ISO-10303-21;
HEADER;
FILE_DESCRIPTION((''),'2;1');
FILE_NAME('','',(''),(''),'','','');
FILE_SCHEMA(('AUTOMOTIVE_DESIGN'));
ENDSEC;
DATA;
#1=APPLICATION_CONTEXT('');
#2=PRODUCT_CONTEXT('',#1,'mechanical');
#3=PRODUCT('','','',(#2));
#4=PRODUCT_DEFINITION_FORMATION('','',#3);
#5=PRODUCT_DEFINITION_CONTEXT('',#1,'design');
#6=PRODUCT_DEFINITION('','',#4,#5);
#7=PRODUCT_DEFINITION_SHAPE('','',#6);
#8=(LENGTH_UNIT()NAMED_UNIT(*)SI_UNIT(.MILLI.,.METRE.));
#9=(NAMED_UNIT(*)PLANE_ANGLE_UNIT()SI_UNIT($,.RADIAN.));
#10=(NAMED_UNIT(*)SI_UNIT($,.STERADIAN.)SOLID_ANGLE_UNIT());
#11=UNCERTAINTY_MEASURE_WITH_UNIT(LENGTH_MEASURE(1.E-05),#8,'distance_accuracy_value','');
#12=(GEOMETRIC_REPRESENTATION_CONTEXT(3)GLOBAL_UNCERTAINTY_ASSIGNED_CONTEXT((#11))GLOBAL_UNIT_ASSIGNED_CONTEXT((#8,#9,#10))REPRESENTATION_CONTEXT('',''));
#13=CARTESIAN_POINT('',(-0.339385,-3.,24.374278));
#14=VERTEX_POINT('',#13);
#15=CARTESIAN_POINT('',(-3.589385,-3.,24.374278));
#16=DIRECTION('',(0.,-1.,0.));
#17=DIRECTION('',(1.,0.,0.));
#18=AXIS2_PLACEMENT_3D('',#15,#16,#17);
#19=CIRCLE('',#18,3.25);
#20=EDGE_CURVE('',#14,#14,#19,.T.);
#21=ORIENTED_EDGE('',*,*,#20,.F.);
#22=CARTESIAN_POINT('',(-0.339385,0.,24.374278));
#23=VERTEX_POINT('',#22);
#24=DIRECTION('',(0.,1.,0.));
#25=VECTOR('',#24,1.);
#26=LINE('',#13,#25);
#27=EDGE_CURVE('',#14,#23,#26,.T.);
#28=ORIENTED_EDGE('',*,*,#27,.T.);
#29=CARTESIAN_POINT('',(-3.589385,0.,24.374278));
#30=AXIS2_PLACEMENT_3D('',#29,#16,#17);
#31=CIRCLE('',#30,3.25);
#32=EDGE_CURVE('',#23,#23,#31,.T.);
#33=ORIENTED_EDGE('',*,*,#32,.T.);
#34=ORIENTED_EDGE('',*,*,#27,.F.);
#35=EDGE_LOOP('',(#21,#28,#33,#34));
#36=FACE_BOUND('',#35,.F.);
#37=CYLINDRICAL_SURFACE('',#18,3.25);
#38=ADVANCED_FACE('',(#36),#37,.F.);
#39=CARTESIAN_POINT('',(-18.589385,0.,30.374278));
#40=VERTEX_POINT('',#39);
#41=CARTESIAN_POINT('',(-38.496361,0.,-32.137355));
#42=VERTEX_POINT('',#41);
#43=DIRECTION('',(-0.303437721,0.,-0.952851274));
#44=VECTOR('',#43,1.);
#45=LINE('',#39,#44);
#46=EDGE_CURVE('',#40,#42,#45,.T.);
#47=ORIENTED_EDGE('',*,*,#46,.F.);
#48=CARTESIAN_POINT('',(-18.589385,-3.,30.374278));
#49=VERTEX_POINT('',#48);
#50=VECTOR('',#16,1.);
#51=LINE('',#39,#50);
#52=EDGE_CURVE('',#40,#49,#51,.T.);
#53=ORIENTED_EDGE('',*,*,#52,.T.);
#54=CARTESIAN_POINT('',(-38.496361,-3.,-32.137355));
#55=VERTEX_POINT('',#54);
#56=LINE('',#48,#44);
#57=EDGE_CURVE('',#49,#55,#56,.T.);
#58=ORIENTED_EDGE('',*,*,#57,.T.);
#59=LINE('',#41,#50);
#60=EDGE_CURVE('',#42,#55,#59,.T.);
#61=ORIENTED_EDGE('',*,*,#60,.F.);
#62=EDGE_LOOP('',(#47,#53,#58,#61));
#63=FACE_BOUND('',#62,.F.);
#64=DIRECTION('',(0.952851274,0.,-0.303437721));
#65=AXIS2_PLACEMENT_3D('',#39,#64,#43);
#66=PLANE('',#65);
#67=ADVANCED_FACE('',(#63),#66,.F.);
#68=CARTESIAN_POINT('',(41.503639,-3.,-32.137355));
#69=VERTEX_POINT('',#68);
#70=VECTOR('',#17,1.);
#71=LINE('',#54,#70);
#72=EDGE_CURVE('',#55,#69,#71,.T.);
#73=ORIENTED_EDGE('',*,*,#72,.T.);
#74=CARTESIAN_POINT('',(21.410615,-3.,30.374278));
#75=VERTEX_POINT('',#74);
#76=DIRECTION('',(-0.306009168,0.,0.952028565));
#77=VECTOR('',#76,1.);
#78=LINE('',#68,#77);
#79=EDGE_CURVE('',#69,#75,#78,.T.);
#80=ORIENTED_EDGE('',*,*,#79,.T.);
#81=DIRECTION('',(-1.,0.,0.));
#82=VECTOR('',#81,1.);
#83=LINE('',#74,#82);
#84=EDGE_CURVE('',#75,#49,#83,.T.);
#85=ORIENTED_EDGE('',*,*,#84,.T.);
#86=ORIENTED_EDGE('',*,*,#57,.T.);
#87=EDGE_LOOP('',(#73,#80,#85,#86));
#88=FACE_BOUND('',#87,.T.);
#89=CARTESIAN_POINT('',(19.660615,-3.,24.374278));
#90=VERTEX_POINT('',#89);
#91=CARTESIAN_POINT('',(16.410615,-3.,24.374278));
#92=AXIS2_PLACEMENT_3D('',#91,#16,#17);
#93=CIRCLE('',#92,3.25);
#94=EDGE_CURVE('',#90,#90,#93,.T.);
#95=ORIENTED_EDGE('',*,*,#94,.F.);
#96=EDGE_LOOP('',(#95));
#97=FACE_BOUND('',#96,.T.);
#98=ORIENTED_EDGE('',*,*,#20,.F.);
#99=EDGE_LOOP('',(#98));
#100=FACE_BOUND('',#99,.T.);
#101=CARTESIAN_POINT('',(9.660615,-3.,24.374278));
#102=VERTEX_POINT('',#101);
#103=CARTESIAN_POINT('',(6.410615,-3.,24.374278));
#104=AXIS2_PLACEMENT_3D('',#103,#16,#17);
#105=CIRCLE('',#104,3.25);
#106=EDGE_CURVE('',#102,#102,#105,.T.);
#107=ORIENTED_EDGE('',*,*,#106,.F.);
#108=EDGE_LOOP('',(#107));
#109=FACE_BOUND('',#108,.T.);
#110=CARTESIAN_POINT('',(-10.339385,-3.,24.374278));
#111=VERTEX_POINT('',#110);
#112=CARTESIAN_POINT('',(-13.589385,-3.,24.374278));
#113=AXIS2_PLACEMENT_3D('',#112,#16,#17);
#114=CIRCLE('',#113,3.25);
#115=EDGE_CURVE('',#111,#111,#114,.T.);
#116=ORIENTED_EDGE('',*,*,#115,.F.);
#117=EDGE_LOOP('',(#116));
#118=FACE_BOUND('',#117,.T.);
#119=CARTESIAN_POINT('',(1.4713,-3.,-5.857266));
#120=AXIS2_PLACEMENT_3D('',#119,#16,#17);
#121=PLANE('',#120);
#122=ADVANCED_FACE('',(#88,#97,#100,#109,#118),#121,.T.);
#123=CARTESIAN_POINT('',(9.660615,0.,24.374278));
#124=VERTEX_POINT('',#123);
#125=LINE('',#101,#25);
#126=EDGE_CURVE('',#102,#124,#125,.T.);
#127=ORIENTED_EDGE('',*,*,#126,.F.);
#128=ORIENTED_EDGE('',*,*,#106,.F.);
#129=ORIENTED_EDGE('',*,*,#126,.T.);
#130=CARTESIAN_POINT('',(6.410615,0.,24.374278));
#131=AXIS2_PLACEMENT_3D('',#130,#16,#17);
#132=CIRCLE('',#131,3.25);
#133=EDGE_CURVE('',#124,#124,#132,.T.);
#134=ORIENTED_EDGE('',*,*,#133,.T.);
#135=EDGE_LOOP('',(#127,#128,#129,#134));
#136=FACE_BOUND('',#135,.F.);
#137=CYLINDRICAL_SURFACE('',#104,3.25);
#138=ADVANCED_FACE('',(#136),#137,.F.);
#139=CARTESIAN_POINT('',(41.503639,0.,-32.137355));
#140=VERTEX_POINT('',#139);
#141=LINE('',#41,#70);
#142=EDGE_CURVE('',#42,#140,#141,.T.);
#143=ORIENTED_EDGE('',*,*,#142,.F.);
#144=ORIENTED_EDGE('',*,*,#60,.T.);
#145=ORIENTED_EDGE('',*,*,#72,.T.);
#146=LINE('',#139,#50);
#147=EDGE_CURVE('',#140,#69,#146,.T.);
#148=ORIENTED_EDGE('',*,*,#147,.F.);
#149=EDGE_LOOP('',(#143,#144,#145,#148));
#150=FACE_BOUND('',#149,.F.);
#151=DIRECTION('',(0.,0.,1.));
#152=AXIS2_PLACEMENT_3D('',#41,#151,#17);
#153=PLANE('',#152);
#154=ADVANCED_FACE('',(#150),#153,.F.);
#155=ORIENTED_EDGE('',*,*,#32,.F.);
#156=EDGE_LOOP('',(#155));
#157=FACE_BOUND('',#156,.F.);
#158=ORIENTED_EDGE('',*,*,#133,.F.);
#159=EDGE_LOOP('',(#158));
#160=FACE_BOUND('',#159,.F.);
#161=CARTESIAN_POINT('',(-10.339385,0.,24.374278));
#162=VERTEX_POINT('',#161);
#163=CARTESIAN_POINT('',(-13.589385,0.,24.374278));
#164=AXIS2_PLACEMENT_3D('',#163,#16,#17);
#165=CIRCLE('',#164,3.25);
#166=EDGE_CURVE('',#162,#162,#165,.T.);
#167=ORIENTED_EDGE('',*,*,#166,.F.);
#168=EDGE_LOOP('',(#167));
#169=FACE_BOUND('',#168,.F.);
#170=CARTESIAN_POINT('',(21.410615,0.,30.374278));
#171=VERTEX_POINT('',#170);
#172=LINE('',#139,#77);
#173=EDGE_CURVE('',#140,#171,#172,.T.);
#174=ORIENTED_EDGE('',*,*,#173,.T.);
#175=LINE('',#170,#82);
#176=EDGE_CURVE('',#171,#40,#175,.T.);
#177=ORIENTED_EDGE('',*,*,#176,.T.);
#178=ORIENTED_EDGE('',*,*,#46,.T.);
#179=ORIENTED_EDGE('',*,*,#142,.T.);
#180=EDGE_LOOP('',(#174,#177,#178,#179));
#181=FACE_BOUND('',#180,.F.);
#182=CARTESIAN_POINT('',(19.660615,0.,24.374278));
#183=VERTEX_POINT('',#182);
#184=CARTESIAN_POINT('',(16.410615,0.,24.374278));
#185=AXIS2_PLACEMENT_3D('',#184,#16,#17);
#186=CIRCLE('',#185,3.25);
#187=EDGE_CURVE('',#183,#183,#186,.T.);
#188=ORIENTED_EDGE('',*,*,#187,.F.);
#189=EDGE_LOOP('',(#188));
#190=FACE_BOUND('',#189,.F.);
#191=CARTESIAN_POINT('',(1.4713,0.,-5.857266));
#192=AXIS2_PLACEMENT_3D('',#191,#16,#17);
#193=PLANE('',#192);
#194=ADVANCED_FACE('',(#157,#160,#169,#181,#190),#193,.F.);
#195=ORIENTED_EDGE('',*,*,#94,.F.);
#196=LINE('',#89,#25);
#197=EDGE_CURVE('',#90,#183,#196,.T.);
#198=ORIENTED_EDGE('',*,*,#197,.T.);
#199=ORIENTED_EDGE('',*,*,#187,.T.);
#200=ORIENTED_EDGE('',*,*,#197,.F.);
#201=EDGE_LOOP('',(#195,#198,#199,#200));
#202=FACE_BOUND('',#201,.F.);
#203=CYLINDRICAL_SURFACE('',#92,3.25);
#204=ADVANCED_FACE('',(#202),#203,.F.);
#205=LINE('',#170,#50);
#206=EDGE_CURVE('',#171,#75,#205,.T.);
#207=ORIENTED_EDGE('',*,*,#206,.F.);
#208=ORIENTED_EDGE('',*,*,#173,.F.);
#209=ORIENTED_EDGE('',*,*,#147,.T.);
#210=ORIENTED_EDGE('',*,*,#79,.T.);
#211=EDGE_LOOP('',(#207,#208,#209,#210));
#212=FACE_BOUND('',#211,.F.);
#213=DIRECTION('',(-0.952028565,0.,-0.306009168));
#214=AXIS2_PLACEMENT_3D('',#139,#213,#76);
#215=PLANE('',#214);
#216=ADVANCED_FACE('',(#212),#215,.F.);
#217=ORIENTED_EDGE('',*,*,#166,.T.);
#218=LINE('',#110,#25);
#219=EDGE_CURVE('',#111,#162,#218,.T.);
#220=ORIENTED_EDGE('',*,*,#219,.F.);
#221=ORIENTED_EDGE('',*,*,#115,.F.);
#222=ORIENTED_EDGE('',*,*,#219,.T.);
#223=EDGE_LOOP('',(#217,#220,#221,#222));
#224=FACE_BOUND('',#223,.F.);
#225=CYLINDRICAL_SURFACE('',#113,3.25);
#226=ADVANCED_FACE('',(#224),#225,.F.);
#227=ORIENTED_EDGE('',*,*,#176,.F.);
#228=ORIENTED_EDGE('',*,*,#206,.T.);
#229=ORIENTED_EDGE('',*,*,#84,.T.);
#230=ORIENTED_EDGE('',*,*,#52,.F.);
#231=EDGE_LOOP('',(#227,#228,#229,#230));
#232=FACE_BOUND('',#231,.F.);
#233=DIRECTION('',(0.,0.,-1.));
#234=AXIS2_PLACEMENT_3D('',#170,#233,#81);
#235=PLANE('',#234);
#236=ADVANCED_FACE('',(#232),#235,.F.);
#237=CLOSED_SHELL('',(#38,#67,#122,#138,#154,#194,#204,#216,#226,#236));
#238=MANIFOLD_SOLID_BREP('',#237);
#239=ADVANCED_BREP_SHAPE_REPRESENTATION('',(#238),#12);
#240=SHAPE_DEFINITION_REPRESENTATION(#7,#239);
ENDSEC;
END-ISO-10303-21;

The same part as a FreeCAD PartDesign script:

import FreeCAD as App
import Part
import Sketcher
Q = App.Units.Quantity


def add_polygon(sketch, points):
    """Adds a closed chain of lines whose ends are joined by coincident constraints."""
    first, n = sketch.GeometryCount, len(points)
    for a, b in zip(points, points[1:] + points[:1]):
        sketch.addGeometry(Part.LineSegment(App.Vector(*a, 0), App.Vector(*b, 0)), False)
    for i in range(n):
        sketch.addConstraint(Sketcher.Constraint("Coincident", first + i, 2, first + (i + 1) % n, 1))

doc = App.newDocument("Part")
body = doc.addObject("PartDesign::Body", "Body")

# Sketch on XZ plane
sketch1 = body.newObject("Sketcher::SketchObject", "Sketch")
sketch1.AttachmentSupport = (doc.getObject("XZ_Plane"), [""])
sketch1.MapMode = "FlatFace"
add_polygon(sketch1, [(21.410615, 30.374278), (-18.589385, 30.374278), (-38.496361, -32.137355), (41.503639, -32.137355)])  # lines 0-3
sketch1.addConstraint([
    Sketcher.Constraint("Horizontal", 0),
    Sketcher.Constraint("Horizontal", 2),
    Sketcher.Constraint("DistanceX", 0, 2, 0, 1, Q("40 mm")),
    Sketcher.Constraint("DistanceX", 2, 1, 2, 2, Q("80 mm")),
    Sketcher.Constraint("Distance", 3, Q("65.66151 mm")),
    Sketcher.Constraint("DistanceY", -1, 1, 0, 2, Q("30.374278 mm")),
    Sketcher.Constraint("DistanceX", 1, 2, -1, 1, Q("38.496361 mm")),
    Sketcher.Constraint("Distance", 1, Q("65.604817 mm")),
])
pad1 = body.newObject("PartDesign::Pad", "Pad")
pad1.Profile = sketch1
pad1.Length = 3

# Sketch on XZ plane
sketch2 = body.newObject("Sketcher::SketchObject", "Sketch001")
sketch2.AttachmentSupport = (doc.getObject("XZ_Plane"), [""])
sketch2.MapMode = "FlatFace"
sketch2.AttachmentOffset = App.Placement(App.Vector(0, 0, 3), App.Rotation())
sketch2.addGeometry([
    Part.Circle(App.Vector(-13.589385, 24.374278, 0), App.Vector(0, 0, 1), 3.25),
    Part.Circle(App.Vector(-3.589385, 24.374278, 0), App.Vector(0, 0, 1), 3.25),
    Part.Circle(App.Vector(6.410615, 24.374278, 0), App.Vector(0, 0, 1), 3.25),
    Part.Circle(App.Vector(16.410615, 24.374278, 0), App.Vector(0, 0, 1), 3.25),
], False)
sketch2.addConstraint([
    Sketcher.Constraint("Equal", 0, 1),
    Sketcher.Constraint("Equal", 1, 2),
    Sketcher.Constraint("Equal", 2, 3),
    Sketcher.Constraint("Horizontal", 0, 3, 1, 3),
    Sketcher.Constraint("Horizontal", 1, 3, 2, 3),
    Sketcher.Constraint("Horizontal", 2, 3, 3, 3),
    Sketcher.Constraint("Diameter", 0, Q("6.5 mm")),
    Sketcher.Constraint("DistanceX", 0, 3, 1, 3, Q("10 mm")),
    Sketcher.Constraint("DistanceX", 1, 3, 2, 3, Q("10 mm")),
    Sketcher.Constraint("DistanceX", 2, 3, 3, 3, Q("10 mm")),
    Sketcher.Constraint("DistanceY", -1, 1, 0, 3, Q("24.374278 mm")),
    Sketcher.Constraint("DistanceX", 0, 3, -1, 1, Q("13.589385 mm")),
])
pocket1 = body.newObject("PartDesign::Pocket", "Pocket")
pocket1.Profile = sketch2
pocket1.Type = "ThroughAll"

doc.recompute()
